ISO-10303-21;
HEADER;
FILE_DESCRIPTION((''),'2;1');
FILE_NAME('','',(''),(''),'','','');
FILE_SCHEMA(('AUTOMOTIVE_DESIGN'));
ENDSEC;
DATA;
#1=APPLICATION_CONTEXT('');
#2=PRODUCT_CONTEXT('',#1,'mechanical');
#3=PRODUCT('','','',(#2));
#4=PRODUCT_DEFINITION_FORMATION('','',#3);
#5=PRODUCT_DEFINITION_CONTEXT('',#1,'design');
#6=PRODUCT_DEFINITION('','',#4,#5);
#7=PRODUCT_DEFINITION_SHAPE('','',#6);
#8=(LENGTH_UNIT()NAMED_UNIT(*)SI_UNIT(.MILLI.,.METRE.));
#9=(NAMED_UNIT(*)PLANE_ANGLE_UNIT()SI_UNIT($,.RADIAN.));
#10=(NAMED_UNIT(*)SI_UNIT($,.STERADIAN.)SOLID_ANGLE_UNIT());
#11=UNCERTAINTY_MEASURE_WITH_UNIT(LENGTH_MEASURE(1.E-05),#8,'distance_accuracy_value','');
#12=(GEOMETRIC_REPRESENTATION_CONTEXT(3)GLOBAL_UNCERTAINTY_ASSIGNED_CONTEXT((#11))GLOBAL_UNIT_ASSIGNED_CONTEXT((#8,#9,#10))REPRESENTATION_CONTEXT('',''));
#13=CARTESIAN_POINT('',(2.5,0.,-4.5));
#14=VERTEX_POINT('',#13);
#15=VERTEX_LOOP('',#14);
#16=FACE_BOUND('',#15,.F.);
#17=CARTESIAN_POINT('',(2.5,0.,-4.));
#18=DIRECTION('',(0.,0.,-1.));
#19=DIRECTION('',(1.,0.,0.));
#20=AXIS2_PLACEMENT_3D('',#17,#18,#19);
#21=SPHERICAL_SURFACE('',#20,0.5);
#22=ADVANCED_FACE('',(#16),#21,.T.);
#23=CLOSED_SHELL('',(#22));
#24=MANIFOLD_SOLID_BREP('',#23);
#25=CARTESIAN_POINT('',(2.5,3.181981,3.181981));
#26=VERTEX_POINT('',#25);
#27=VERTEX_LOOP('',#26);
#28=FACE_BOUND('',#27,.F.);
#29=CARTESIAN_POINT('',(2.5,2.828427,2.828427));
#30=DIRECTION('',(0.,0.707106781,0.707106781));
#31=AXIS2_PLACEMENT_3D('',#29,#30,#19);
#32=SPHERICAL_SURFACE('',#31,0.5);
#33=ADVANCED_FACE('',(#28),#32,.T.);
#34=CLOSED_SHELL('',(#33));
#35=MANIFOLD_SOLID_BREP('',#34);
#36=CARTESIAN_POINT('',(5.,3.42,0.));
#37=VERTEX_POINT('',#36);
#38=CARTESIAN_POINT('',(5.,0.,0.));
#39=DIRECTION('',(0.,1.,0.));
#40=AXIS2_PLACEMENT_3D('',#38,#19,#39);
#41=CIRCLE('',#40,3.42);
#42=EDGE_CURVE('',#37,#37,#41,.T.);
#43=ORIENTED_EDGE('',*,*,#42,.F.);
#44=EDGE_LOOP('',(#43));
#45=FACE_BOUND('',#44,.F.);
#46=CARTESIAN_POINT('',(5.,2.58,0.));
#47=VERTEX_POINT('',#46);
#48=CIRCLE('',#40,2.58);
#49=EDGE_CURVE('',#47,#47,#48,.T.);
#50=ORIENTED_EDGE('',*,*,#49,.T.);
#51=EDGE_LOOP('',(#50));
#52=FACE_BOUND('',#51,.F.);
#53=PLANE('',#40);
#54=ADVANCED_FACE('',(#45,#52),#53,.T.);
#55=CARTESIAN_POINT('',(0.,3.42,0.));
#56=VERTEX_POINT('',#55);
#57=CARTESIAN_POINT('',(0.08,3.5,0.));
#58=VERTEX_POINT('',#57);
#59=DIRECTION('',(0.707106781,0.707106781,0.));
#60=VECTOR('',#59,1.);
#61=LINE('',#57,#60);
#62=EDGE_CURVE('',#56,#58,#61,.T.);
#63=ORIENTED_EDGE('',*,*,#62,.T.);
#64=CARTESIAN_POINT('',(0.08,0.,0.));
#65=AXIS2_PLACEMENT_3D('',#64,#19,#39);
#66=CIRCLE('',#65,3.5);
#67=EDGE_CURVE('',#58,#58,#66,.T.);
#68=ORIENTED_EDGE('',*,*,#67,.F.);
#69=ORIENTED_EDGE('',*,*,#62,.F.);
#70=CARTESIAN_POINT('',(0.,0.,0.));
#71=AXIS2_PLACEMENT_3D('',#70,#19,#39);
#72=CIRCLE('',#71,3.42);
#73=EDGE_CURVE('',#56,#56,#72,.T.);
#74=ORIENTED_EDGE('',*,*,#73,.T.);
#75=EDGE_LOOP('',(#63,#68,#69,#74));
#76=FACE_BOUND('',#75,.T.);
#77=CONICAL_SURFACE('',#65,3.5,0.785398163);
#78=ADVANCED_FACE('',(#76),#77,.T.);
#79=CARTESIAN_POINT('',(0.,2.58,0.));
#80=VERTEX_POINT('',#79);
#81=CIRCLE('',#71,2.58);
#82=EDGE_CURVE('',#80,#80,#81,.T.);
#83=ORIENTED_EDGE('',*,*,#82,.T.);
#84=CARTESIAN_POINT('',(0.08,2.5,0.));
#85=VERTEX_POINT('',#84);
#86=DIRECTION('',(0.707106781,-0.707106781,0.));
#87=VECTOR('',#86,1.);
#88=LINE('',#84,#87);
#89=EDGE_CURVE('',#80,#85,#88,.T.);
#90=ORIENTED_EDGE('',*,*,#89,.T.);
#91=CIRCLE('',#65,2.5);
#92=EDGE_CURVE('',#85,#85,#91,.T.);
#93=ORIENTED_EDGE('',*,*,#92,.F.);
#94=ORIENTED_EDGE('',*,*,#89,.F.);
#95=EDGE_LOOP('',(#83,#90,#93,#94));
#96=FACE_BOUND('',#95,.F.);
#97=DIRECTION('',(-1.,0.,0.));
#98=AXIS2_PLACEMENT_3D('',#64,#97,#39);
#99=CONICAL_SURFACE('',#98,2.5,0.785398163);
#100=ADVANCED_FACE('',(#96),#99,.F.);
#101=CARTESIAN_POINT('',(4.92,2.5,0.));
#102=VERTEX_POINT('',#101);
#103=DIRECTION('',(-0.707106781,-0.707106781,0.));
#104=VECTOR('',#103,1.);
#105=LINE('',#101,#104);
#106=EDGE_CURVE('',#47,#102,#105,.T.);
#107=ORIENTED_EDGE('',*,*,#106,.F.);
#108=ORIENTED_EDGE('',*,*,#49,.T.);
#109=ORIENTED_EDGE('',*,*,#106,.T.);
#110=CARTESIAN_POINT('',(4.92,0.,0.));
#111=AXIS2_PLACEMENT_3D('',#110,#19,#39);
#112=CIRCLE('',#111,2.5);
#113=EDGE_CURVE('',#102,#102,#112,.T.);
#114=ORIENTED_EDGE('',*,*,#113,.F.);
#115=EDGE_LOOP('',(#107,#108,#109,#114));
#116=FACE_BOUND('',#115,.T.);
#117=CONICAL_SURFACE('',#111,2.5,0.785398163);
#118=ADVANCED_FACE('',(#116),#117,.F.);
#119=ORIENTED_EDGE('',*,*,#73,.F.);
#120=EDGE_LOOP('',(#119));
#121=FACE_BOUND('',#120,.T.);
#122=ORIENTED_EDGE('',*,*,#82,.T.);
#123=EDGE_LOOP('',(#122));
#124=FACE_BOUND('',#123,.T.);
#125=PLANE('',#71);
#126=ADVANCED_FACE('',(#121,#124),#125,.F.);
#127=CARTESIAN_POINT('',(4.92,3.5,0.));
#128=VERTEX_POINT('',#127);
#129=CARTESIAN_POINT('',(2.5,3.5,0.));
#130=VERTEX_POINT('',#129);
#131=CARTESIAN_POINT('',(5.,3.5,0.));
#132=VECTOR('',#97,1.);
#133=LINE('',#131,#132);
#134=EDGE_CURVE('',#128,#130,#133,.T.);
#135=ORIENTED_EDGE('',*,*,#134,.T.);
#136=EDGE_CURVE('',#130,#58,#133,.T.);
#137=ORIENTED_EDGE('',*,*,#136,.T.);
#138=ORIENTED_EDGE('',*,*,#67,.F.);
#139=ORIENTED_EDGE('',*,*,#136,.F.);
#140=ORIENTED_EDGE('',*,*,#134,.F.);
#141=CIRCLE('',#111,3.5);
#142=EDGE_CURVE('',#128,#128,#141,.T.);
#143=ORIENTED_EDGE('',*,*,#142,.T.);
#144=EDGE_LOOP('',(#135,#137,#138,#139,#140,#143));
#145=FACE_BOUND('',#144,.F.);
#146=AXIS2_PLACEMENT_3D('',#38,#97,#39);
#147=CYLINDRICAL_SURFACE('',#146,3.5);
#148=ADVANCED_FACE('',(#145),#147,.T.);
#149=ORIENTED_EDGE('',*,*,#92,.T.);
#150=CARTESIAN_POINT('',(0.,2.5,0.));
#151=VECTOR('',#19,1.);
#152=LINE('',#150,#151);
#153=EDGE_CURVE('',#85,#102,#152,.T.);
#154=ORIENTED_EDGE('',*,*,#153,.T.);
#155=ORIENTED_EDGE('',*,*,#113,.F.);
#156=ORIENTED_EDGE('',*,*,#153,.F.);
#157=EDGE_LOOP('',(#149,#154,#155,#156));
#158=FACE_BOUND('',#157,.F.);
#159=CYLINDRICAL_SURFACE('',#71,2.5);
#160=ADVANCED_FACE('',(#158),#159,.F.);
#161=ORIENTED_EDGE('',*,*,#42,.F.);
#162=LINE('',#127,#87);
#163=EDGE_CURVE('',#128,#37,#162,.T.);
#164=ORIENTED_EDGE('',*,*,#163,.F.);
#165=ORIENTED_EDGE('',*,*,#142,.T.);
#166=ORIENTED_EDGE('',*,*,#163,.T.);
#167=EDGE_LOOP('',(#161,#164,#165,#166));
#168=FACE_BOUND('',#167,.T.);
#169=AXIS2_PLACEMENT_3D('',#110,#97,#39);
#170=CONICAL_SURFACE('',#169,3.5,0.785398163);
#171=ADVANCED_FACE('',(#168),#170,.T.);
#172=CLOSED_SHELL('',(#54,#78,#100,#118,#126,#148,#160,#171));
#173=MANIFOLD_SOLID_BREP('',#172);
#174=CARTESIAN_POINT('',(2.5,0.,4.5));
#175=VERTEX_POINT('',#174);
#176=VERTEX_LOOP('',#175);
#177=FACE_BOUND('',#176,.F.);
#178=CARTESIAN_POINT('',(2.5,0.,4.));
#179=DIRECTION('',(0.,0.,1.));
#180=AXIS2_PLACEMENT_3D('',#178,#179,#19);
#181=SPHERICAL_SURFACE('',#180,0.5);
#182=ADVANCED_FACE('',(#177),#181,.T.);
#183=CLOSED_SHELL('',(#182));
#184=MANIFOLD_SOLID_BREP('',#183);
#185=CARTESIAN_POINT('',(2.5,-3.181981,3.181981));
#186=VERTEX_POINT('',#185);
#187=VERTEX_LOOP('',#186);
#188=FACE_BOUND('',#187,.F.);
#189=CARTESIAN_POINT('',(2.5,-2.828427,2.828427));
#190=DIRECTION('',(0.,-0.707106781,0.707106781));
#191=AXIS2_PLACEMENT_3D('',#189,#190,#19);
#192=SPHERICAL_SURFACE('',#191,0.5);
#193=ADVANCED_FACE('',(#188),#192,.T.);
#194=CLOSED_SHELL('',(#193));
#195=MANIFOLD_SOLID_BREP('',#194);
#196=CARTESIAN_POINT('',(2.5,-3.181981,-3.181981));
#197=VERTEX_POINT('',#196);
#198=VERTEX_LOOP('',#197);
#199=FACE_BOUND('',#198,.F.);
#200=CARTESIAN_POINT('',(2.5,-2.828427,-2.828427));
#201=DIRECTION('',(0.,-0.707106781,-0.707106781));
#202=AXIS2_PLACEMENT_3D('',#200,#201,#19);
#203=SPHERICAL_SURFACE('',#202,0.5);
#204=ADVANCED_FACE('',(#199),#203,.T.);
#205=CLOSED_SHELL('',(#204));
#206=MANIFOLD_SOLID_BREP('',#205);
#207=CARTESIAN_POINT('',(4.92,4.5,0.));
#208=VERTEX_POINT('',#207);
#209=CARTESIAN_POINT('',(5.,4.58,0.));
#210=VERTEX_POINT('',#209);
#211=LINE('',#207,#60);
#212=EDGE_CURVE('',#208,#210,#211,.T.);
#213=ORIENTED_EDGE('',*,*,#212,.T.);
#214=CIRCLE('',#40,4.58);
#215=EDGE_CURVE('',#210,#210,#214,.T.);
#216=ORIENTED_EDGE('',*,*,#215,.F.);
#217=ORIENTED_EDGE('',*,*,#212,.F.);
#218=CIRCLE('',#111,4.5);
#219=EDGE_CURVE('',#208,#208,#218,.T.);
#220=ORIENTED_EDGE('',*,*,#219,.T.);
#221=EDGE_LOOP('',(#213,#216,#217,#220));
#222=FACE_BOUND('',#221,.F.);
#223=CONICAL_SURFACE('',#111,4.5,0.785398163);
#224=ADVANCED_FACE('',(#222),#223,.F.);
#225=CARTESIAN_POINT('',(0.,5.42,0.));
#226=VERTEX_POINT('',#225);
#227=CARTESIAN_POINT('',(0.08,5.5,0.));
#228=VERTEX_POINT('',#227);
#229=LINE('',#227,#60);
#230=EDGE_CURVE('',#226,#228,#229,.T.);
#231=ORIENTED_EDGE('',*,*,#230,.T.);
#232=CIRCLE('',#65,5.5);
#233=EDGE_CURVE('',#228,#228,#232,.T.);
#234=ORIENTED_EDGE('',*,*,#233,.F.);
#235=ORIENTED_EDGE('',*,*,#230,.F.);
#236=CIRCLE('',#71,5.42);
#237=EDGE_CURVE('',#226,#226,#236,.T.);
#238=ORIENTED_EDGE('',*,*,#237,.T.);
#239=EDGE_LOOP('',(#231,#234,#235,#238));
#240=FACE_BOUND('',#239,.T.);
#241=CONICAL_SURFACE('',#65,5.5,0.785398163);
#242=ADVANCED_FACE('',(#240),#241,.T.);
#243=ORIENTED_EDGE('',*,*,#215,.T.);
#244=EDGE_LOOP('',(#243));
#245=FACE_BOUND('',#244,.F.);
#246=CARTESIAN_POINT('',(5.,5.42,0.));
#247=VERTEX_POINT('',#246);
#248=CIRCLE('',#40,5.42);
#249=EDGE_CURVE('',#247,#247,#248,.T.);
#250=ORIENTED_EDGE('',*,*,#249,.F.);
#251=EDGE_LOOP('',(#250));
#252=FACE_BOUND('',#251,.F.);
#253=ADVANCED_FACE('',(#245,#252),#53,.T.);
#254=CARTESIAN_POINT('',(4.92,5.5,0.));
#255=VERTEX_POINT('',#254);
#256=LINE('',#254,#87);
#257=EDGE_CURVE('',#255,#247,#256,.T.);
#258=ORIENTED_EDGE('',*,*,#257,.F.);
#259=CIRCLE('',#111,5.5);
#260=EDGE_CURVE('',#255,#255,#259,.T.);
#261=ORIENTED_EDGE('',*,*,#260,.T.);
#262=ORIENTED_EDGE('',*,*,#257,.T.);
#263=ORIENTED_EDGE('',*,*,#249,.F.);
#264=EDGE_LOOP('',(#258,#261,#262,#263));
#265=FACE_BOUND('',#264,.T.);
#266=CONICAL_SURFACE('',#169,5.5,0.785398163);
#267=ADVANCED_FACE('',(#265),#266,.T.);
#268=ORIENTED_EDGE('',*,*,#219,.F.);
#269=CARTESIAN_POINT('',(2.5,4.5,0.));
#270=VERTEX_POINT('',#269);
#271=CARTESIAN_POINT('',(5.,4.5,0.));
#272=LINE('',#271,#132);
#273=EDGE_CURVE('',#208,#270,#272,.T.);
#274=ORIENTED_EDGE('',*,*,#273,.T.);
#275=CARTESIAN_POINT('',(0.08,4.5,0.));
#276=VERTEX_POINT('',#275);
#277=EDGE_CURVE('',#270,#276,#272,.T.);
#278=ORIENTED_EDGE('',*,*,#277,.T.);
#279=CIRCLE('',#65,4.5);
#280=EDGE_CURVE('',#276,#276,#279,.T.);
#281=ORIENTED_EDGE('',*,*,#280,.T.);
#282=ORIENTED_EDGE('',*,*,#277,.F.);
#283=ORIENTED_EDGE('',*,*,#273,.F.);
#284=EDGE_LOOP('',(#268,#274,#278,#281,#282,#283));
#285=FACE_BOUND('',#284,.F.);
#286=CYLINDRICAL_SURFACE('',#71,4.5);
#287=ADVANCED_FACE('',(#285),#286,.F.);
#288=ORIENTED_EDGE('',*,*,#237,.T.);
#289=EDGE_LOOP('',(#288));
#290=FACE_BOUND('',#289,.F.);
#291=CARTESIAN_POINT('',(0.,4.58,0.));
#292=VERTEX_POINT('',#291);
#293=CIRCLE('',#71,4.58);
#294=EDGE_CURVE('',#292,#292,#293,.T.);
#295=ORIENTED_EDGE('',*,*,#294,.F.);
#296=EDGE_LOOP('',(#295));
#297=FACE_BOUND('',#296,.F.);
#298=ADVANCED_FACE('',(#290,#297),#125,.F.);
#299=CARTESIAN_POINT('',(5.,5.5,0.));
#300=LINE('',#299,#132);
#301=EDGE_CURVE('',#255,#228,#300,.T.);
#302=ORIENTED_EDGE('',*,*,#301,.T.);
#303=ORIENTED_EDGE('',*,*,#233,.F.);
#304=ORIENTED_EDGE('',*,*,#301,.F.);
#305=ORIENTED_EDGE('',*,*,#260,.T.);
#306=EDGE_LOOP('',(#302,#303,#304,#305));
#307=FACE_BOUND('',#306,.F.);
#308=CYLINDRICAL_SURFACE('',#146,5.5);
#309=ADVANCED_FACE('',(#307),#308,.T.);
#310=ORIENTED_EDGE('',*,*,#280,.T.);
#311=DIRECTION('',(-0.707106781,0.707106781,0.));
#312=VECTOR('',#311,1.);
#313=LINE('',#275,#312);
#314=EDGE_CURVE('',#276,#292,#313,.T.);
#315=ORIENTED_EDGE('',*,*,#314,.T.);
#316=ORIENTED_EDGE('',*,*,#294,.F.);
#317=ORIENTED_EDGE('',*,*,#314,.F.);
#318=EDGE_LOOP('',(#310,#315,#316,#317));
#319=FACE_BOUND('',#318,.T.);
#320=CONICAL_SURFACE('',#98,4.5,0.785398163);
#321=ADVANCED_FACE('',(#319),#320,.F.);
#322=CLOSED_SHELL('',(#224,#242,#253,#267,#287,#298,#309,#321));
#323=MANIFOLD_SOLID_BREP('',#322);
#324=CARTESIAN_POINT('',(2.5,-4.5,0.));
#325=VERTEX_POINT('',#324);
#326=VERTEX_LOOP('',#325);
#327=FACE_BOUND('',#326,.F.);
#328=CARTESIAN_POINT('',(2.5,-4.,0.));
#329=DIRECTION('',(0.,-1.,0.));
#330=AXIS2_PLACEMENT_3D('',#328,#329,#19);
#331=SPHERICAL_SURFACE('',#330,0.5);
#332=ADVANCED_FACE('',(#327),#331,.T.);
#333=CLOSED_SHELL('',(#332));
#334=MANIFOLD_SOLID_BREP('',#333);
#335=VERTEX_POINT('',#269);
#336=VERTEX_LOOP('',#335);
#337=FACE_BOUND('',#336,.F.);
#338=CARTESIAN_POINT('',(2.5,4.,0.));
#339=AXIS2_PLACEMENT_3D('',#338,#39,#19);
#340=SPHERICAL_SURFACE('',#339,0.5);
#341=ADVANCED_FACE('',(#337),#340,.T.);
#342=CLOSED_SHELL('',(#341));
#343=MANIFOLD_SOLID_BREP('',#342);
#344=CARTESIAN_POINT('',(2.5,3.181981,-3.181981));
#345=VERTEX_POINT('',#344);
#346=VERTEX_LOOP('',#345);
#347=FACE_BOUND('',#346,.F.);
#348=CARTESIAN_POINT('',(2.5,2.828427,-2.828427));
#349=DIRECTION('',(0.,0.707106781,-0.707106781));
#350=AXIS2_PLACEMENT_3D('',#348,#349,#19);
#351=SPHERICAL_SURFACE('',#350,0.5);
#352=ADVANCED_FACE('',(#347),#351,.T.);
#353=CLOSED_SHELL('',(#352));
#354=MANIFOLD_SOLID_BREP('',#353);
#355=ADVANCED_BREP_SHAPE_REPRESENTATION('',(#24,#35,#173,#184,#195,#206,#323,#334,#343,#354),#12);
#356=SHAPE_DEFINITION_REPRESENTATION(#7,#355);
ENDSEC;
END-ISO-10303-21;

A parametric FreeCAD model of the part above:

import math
import FreeCAD as App
import Part
import Sketcher

V = App.Vector


def edges_at(feature, points):
    """Names of the edges that pass closest to the given points."""
    edges = feature.Shape.Edges
    near = lambda p: min(range(len(edges)), key=lambda i: edges[i].distToShape(Part.Vertex(*p))[0])
    return sorted({f"Edge{near(p) + 1}" for p in points})

doc = App.newDocument("Part")
body = doc.addObject("PartDesign::Body", "Body")
body.AllowCompound = True

# Sketch on XY plane
sketch1 = body.newObject("Sketcher::SketchObject", "Sketch")
sketch1.AttachmentSupport = (doc.getObject("XY_Plane"), [""])
sketch1.MapMode = "FlatFace"
sketch1.addGeometry(Part.LineSegment(V(0, 4.5, 0), V(5, 4.5, 0)), False)
sketch1.addGeometry(Part.LineSegment(V(5, 4.5, 0), V(5, 5.5, 0)), False)
sketch1.addGeometry(Part.LineSegment(V(5, 5.5, 0), V(0, 5.5, 0)), False)
sketch1.addGeometry(Part.LineSegment(V(0, 5.5, 0), V(0, 4.5, 0)), False)
sketch1.addGeometry(Part.LineSegment(V(0, 3.5, 0), V(0, 2.5, 0)), False)
sketch1.addGeometry(Part.LineSegment(V(0, 2.5, 0), V(5, 2.5, 0)), False)
sketch1.addGeometry(Part.LineSegment(V(5, 2.5, 0), V(5, 3.5, 0)), False)
sketch1.addGeometry(Part.LineSegment(V(5, 3.5, 0), V(0, 3.5, 0)), False)
sketch1.addConstraint(Sketcher.Constraint("Coincident", 0, 2, 1, 1))
sketch1.addConstraint(Sketcher.Constraint("Coincident", 1, 2, 2, 1))
sketch1.addConstraint(Sketcher.Constraint("Coincident", 2, 2, 3, 1))
sketch1.addConstraint(Sketcher.Constraint("Coincident", 3, 2, 0, 1))
sketch1.addConstraint(Sketcher.Constraint("Coincident", 4, 2, 5, 1))
sketch1.addConstraint(Sketcher.Constraint("Coincident", 5, 2, 6, 1))
sketch1.addConstraint(Sketcher.Constraint("Coincident", 6, 2, 7, 1))
sketch1.addConstraint(Sketcher.Constraint("Coincident", 7, 2, 4, 1))
sketch1.addConstraint(Sketcher.Constraint("Horizontal", 0))
sketch1.addConstraint(Sketcher.Constraint("Vertical", 1))
sketch1.addConstraint(Sketcher.Constraint("Horizontal", 2))
sketch1.addConstraint(Sketcher.Constraint("Vertical", 3))
sketch1.addConstraint(Sketcher.Constraint("Vertical", 4))
sketch1.addConstraint(Sketcher.Constraint("Horizontal", 5))
sketch1.addConstraint(Sketcher.Constraint("Vertical", 6))
sketch1.addConstraint(Sketcher.Constraint("Horizontal", 7))
sketch1.addConstraint(Sketcher.Constraint("PointOnObject", 2, 2, -2))
sketch1.addConstraint(Sketcher.Constraint("PointOnObject", 4, 2, -2))
sketch1.addConstraint(Sketcher.Constraint("Vertical", 1, 2, 5, 2))
sketch1.addConstraint(Sketcher.Constraint("Equal", 3, 4))
sketch1.addConstraint(Sketcher.Constraint("DistanceX", 0, 1, 0, 2, 5.0))
sketch1.addConstraint(Sketcher.Constraint("DistanceY", 1, 1, 1, 2, 1.0))
sketch1.addConstraint(Sketcher.Constraint("DistanceY", 6, 2, 0, 2, 1.0))
sketch1.addConstraint(Sketcher.Constraint("DistanceY", -1, 1, 0, 2, 4.5))
revolution = body.newObject("PartDesign::Revolution", "Revolution")
revolution.Profile = sketch1
revolution.ReferenceAxis = (sketch1, ["H_Axis"])
revolution.Angle = 360
doc.recompute()

chamfer = body.newObject("PartDesign::Chamfer", "Chamfer")
chamfer.Base = (revolution, edges_at(revolution, [
    (5, -5.5, 0),
    (5, -4.5, 0),
    (5, -3.5, 0),
    (5, -2.5, 0),
    (0, -5.5, 0),
    (0, -4.5, 0),
    (0, -3.5, 0),
    (0, -2.5, 0),
]))
chamfer.Size = 0.08

# Sketch on XY plane
sketch2 = body.newObject("Sketcher::SketchObject", "Sketch001")
sketch2.AttachmentSupport = (doc.getObject("XY_Plane"), [""])
sketch2.MapMode = "FlatFace"
sketch2.addGeometry(Part.LineSegment(V(2.5, 4.5, 0), V(2.5, 3.5, 0)), False)
sketch2.addGeometry(Part.ArcOfCircle(Part.Circle(V(2.5, 4, 0), V(0, 0, 1), 0.5), math.radians(-90), math.radians(90)), False)
sketch2.addGeometry(Part.LineSegment(V(2.5, 4.5, 0), V(2.5, 3.5, 0)), True)  # axis
sketch2.addConstraint(Sketcher.Constraint("Coincident", 0, 1, 1, 2))
sketch2.addConstraint(Sketcher.Constraint("Coincident", 1, 1, 0, 2))
sketch2.addConstraint(Sketcher.Constraint("Vertical", 0))
sketch2.addConstraint(Sketcher.Constraint("Vertical", 2))
sketch2.addConstraint(Sketcher.Constraint("Coincident", 2, 1, 0, 1))
sketch2.addConstraint(Sketcher.Constraint("Vertical", 1, 3, 0, 1))
sketch2.addConstraint(Sketcher.Constraint("Equal", 0, 2))
sketch2.addConstraint(Sketcher.Constraint("Radius", 1, 0.5))
sketch2.addConstraint(Sketcher.Constraint("DistanceY", -1, 1, 1, 3, 4.0))
sketch2.addConstraint(Sketcher.Constraint("DistanceX", -1, 1, 1, 3, 2.5))
revolution2 = body.newObject("PartDesign::Revolution", "Revolution001")
revolution2.Profile = sketch2
revolution2.ReferenceAxis = (sketch2, ["Axis0"])
revolution2.Angle = 360
doc.recompute()

polarpattern = body.newObject("PartDesign::PolarPattern", "PolarPattern")
polarpattern.Originals = [revolution2]
polarpattern.Axis = (doc.getObject("X_Axis"), [""])
polarpattern.Angle = 360
polarpattern.Occurrences = 8
body.Tip = polarpattern

doc.recompute()
